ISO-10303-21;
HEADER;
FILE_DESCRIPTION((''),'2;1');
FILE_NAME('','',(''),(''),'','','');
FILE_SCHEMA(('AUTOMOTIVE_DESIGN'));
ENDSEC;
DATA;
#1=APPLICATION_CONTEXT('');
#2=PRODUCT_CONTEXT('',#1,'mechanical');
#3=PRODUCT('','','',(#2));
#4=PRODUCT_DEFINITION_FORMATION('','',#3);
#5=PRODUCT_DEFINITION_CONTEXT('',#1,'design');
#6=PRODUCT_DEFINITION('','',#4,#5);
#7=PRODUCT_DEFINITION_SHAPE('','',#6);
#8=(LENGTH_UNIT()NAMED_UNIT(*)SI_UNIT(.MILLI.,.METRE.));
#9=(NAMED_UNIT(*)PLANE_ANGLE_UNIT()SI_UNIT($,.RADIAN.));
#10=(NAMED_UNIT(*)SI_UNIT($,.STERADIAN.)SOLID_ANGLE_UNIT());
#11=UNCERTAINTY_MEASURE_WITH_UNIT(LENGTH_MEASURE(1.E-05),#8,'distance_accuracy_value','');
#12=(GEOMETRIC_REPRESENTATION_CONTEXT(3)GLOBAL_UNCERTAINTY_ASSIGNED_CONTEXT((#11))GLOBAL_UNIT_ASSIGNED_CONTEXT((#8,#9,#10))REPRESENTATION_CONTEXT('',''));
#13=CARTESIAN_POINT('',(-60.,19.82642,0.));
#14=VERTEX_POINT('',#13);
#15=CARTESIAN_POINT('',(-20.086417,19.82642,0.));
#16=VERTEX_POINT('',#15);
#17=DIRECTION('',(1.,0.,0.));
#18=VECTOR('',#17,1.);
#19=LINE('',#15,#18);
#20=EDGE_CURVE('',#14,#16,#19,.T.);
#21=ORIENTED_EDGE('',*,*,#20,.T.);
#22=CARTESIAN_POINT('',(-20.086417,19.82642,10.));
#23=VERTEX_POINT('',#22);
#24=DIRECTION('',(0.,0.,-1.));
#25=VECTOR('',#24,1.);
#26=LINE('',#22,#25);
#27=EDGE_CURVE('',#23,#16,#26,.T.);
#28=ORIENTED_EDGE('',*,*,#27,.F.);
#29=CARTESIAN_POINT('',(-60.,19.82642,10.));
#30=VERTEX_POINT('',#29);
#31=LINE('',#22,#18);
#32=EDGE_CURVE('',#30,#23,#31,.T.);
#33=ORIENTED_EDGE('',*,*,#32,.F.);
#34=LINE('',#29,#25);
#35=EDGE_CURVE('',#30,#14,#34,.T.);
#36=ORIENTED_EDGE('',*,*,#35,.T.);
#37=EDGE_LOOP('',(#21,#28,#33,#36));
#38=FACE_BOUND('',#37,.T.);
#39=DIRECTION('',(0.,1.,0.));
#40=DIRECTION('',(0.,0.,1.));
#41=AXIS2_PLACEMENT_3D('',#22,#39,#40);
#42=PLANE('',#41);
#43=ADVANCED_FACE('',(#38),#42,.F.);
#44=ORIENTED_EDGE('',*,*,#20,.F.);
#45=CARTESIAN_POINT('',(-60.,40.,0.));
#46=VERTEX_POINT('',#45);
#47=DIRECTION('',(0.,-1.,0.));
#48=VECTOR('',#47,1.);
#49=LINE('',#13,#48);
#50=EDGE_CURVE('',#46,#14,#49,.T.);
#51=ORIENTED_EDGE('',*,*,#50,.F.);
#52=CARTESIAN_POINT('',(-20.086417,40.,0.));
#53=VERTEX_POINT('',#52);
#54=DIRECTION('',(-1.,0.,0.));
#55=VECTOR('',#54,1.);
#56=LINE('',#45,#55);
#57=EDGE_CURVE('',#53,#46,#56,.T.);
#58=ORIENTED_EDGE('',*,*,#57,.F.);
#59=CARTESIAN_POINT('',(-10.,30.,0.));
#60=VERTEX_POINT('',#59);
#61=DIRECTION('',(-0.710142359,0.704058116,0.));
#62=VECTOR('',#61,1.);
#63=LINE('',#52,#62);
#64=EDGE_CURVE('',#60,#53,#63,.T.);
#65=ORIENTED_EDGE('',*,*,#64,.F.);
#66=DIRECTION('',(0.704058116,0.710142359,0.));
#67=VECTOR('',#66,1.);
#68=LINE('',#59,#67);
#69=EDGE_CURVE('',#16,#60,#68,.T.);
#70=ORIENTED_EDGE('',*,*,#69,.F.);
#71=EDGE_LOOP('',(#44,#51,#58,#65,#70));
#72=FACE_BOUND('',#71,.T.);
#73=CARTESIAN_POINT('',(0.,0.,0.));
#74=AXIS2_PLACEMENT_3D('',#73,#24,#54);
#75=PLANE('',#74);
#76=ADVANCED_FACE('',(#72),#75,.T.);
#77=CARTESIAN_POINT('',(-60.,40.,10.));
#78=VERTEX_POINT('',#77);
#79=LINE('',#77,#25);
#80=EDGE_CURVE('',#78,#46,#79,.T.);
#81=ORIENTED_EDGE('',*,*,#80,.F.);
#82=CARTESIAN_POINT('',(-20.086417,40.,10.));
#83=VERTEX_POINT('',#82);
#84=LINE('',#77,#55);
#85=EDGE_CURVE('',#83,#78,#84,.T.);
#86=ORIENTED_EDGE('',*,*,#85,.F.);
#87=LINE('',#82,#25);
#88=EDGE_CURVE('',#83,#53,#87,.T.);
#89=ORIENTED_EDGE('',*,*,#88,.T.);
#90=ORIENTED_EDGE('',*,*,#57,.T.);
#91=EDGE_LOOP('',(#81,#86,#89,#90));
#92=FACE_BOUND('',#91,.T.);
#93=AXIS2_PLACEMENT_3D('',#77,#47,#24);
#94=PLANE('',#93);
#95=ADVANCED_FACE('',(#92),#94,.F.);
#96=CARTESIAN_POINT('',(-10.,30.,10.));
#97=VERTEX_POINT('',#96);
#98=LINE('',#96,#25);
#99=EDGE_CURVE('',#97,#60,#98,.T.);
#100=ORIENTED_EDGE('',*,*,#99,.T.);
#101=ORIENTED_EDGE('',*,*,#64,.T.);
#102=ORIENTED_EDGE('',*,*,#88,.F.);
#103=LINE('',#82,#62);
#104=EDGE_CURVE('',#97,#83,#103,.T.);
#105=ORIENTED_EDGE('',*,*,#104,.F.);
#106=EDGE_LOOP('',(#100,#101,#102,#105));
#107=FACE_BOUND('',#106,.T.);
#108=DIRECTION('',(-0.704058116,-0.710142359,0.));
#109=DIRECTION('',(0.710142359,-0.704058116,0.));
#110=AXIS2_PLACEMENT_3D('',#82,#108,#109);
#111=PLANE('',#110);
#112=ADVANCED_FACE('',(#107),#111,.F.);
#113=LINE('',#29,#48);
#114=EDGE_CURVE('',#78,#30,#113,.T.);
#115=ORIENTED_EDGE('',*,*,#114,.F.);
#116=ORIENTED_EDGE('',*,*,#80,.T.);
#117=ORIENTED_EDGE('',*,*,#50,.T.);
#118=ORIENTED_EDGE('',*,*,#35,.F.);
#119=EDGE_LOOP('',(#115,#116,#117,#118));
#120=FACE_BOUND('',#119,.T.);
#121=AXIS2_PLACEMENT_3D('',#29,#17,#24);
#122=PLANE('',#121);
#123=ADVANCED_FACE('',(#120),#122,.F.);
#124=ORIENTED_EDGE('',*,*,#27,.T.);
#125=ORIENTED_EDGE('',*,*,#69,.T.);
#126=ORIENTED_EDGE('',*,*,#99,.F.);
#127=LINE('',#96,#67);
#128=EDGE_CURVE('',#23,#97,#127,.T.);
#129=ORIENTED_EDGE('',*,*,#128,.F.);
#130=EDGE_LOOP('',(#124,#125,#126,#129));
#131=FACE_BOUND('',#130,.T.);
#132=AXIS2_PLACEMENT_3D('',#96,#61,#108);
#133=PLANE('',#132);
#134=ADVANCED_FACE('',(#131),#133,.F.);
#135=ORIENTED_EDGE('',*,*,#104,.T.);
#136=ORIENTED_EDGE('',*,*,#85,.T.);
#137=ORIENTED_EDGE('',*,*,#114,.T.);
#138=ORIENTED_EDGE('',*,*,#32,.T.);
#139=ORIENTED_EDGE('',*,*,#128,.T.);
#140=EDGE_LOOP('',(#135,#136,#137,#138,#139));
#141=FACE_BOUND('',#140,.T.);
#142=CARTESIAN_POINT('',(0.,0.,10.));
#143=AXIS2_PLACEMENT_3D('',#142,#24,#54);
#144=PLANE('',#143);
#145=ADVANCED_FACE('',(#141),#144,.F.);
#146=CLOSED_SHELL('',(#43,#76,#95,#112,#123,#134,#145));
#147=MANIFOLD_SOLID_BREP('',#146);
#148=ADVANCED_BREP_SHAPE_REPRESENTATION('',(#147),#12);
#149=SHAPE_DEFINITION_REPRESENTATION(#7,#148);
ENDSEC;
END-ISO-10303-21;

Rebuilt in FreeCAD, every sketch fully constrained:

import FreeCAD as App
import Part
import Sketcher
Q = App.Units.Quantity

doc = App.newDocument("Part")
body = doc.addObject("PartDesign::Body", "Body")

sketch1 = body.newObject("Sketcher::SketchObject", "Sketch")
sketch1.AttachmentSupport = (doc.getObject("XY_Plane"), [""])
sketch1.MapMode = "FlatFace"
sketch1.addGeometry(Part.LineSegment(App.Vector(-20, 40, 0), App.Vector(-60, 40, 0)), False)
sketch1.addGeometry(Part.LineSegment(App.Vector(-60, 40, 0), App.Vector(-60, 20, 0)), False)
sketch1.addGeometry(Part.LineSegment(App.Vector(-60, 20, 0), App.Vector(-20, 20, 0)), False)
sketch1.addGeometry(Part.LineSegment(App.Vector(-20, 20, 0), App.Vector(-10, 30, 0)), False)
sketch1.addGeometry(Part.LineSegment(App.Vector(-10, 30, 0), App.Vector(-20, 40, 0)), False)
sketch1.addConstraint(Sketcher.Constraint("Coincident", 0, 2, 1, 1))
sketch1.addConstraint(Sketcher.Constraint("Coincident", 1, 2, 2, 1))
sketch1.addConstraint(Sketcher.Constraint("Coincident", 2, 2, 3, 1))
sketch1.addConstraint(Sketcher.Constraint("Coincident", 3, 2, 4, 1))
sketch1.addConstraint(Sketcher.Constraint("Coincident", 4, 2, 0, 1))
sketch1.addConstraint(Sketcher.Constraint("Horizontal", 0))
sketch1.addConstraint(Sketcher.Constraint("Vertical", 1))
sketch1.addConstraint(Sketcher.Constraint("Horizontal", 2))
sketch1.addConstraint(Sketcher.Constraint("Perpendicular", 3, 4))
sketch1.addConstraint(Sketcher.Constraint("Vertical", 2, 2, 4, 2))
sketch1.addConstraint(Sketcher.Constraint("DistanceX", 0, 2, -1, 1, Q("60 mm")))
sketch1.addConstraint(Sketcher.Constraint("DistanceY", -1, 1, 0, 2, Q("40 mm")))
sketch1.addConstraint(Sketcher.Constraint("DistanceX", 3, 2, -1, 1, Q("10 mm")))
sketch1.addConstraint(Sketcher.Constraint("DistanceY", -1, 1, 3, 2, Q("30 mm")))
sketch1.addConstraint(Sketcher.Constraint("DistanceY", 1, 2, 1, 1, Q("20.17358 mm")))
pad1 = body.newObject("PartDesign::Pad", "Pad")
pad1.Profile = sketch1
pad1.Length = 10

doc.recompute()
